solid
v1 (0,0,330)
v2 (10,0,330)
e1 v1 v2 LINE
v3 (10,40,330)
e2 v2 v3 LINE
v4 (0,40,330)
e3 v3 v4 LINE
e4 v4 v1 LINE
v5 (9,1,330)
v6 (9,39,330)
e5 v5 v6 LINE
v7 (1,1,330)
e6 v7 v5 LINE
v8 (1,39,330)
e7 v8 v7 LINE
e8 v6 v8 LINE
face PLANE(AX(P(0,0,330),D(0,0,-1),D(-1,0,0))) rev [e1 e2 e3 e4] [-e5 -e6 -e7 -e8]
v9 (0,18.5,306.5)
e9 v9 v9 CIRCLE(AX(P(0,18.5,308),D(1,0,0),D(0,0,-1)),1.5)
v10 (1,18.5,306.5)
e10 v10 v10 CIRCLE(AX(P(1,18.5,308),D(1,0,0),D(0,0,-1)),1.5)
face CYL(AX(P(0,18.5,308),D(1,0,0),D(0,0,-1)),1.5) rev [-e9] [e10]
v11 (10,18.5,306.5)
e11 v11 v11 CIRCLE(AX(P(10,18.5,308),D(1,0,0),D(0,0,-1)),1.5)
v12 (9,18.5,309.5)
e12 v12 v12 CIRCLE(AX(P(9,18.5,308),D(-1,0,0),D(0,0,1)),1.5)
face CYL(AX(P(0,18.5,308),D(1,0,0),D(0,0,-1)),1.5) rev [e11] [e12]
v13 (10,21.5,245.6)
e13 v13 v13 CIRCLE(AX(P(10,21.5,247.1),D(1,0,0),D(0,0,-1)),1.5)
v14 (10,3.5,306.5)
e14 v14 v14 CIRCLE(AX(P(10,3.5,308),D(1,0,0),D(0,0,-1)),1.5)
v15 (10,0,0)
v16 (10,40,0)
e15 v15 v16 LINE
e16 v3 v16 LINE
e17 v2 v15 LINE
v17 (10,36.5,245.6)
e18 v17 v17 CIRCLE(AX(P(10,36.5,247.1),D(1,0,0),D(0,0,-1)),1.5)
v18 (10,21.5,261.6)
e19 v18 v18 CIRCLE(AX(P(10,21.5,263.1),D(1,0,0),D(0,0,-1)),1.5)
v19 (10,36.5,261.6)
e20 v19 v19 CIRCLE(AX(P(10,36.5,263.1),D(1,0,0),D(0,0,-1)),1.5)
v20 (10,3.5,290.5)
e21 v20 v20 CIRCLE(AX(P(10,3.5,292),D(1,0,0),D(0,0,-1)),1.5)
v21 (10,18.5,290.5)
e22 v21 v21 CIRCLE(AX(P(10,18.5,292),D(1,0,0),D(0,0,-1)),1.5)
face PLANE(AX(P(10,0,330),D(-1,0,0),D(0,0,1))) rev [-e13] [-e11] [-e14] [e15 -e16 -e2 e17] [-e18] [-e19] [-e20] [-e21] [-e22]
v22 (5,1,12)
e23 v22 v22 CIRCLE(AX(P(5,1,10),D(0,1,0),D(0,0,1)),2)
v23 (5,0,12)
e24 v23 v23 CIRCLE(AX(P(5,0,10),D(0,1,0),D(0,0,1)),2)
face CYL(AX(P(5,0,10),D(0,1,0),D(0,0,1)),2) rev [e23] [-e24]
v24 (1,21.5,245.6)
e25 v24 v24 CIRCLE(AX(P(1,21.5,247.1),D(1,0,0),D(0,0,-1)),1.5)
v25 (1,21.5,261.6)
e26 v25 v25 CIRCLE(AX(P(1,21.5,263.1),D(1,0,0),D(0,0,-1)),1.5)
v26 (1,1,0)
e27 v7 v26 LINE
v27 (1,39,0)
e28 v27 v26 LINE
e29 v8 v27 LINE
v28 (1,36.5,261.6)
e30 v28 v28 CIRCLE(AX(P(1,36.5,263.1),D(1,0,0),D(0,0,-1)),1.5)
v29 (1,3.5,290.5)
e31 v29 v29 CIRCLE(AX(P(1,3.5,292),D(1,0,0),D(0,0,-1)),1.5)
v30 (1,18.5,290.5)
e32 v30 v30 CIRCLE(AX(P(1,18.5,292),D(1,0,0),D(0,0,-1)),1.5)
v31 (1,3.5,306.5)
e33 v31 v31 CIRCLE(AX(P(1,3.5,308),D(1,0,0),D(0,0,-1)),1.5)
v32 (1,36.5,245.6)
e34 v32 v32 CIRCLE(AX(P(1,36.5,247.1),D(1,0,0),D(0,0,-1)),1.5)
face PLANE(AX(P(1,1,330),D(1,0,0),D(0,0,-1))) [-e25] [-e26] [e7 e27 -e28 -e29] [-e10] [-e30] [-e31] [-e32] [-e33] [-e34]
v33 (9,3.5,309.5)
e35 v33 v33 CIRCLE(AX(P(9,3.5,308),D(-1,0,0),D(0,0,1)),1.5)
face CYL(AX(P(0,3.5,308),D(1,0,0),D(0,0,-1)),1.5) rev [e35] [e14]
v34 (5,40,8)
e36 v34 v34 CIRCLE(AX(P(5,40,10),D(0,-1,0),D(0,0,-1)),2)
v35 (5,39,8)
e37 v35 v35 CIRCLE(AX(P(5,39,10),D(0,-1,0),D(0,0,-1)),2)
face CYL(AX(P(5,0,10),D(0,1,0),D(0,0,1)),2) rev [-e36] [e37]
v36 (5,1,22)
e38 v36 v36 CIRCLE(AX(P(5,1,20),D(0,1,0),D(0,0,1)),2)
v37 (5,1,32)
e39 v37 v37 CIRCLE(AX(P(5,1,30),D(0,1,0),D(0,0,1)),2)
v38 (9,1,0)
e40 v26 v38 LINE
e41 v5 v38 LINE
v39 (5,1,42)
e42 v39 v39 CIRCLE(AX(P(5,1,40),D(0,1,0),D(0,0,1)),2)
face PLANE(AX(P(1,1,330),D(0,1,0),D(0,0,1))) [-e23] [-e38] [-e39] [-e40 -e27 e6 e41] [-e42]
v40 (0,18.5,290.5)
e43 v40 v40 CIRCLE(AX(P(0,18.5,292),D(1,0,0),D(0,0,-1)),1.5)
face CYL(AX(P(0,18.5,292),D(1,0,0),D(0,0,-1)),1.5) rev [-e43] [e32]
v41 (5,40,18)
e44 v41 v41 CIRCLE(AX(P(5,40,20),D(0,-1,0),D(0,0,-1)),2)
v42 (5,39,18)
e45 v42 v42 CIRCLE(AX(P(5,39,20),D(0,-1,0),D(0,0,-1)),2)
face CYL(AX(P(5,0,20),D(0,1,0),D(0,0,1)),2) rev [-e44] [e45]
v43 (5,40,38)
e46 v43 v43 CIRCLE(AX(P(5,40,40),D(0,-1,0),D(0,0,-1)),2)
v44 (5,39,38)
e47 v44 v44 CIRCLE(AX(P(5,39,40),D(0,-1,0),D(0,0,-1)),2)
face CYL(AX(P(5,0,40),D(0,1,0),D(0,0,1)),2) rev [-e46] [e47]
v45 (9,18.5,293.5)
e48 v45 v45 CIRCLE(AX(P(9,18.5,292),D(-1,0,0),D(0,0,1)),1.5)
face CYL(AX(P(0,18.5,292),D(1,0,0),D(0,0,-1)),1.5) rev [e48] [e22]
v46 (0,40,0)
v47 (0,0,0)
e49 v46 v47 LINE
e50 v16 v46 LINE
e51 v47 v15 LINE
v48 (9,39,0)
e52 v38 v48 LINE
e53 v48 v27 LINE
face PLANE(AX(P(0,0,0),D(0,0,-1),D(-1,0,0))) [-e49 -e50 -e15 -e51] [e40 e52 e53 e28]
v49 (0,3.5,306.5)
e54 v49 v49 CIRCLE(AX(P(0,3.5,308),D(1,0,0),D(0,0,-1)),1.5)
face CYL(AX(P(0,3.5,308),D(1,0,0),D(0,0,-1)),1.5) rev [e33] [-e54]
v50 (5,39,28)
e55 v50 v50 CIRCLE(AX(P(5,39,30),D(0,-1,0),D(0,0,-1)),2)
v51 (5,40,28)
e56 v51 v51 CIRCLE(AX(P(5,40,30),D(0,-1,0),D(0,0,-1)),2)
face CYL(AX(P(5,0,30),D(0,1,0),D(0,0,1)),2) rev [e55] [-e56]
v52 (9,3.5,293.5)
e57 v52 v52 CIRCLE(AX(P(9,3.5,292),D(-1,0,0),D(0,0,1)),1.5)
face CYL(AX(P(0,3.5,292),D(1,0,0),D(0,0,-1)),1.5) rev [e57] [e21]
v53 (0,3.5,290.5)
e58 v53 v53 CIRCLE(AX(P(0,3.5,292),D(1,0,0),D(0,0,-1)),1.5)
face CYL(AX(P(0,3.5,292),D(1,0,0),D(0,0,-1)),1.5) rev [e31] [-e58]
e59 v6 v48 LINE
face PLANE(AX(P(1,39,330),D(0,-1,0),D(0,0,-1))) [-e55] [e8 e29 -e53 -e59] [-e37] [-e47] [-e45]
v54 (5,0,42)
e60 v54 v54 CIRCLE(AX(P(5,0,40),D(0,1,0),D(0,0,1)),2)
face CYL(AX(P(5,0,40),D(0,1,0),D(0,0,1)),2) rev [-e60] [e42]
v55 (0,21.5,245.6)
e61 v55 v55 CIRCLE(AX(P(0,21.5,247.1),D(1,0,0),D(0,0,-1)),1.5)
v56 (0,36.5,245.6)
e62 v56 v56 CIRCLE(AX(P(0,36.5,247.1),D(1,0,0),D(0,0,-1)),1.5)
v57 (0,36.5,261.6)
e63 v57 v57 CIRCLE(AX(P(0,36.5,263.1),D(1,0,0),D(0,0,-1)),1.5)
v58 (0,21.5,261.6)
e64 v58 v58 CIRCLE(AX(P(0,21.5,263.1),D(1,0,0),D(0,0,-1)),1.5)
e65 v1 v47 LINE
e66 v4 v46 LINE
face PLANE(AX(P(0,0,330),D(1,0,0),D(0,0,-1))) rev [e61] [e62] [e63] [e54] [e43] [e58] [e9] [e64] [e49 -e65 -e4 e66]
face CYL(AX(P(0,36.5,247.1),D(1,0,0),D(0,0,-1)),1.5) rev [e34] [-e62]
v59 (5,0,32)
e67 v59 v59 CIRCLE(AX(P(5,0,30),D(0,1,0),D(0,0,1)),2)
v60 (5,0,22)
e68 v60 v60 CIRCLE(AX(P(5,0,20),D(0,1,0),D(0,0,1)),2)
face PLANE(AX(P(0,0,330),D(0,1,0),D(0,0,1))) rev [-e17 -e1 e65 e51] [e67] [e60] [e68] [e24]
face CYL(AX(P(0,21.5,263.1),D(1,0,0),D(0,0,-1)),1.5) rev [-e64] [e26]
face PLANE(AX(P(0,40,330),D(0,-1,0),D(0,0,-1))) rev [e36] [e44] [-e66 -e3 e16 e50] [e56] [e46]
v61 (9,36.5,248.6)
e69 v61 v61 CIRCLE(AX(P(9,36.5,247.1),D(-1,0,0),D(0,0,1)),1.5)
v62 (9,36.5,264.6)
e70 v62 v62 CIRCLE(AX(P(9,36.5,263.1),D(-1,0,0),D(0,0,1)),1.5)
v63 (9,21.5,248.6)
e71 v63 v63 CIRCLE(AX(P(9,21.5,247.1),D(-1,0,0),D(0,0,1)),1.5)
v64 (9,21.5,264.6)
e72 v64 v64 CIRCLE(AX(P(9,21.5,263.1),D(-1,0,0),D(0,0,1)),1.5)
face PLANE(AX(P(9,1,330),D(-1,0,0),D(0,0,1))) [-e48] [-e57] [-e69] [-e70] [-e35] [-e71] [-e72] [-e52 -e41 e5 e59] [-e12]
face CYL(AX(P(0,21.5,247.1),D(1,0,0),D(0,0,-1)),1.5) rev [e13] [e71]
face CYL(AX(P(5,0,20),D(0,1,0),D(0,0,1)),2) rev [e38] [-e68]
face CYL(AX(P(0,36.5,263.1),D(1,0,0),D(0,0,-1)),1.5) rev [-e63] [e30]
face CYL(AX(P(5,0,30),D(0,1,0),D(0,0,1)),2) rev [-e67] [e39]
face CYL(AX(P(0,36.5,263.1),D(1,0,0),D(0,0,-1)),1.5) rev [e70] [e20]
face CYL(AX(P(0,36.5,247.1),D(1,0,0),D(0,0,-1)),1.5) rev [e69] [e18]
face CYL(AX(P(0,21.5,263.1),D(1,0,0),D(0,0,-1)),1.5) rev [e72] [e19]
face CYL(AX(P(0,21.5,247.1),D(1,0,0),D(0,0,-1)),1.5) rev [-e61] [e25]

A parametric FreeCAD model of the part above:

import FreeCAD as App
import Part
import Sketcher

V = App.Vector


def add_polygon(sketch, points):
    """Adds a closed chain of lines whose ends are joined by coincident constraints."""
    first, n = sketch.GeometryCount, len(points)
    for a, b in zip(points, points[1:] + points[:1]):
        sketch.addGeometry(Part.LineSegment(App.Vector(*a, 0), App.Vector(*b, 0)), False)
    for i in range(n):
        sketch.addConstraint(Sketcher.Constraint("Coincident", first + i, 2, first + (i + 1) % n, 1))

doc = App.newDocument("Part")
body = doc.addObject("PartDesign::Body", "Body")

sketch1 = body.newObject("Sketcher::SketchObject", "Sketch")
sketch1.AttachmentSupport = (doc.getObject("XY_Plane"), [""])
sketch1.MapMode = "FlatFace"
add_polygon(sketch1, [(0, 40), (0, 0), (10, 0), (10, 40)])
add_polygon(sketch1, [(9, 1), (1, 1), (1, 39), (9, 39)])
sketch1.addConstraint(Sketcher.Constraint("Vertical", 0))
sketch1.addConstraint(Sketcher.Constraint("Horizontal", 1))
sketch1.addConstraint(Sketcher.Constraint("Vertical", 2))
sketch1.addConstraint(Sketcher.Constraint("Horizontal", 3))
sketch1.addConstraint(Sketcher.Constraint("Horizontal", 4))
sketch1.addConstraint(Sketcher.Constraint("Vertical", 5))
sketch1.addConstraint(Sketcher.Constraint("Horizontal", 6))
sketch1.addConstraint(Sketcher.Constraint("Vertical", 7))
sketch1.addConstraint(Sketcher.Constraint("Coincident", 0, 2, -1, 1))
sketch1.addConstraint(Sketcher.Constraint("DistanceX", 1, 1, 1, 2, 10.0))
sketch1.addConstraint(Sketcher.Constraint("DistanceX", 4, 2, 4, 1, 8.0))
sketch1.addConstraint(Sketcher.Constraint("DistanceY", 0, 2, 0, 1, 40.0))
sketch1.addConstraint(Sketcher.Constraint("DistanceY", 5, 1, 5, 2, 38.0))
sketch1.addConstraint(Sketcher.Constraint("DistanceX", -1, 1, 4, 2, 1.0))
sketch1.addConstraint(Sketcher.Constraint("DistanceY", -1, 1, 4, 2, 1.0))
pad1 = body.newObject("PartDesign::Pad", "Pad")
pad1.Profile = sketch1
pad1.Length = 330

sketch2 = body.newObject("Sketcher::SketchObject", "Sketch001")
sketch2.AttachmentSupport = (doc.getObject("YZ_Plane"), [""])
sketch2.MapMode = "FlatFace"
sketch2.AttachmentOffset = App.Placement(V(0, 0, 10), App.Rotation())
sketch2.addGeometry(Part.Circle(V(18.5, 308, 0), V(0, 0, 1), 1.5), False)
sketch2.addGeometry(Part.Circle(V(18.5, 292, 0), V(0, 0, 1), 1.5), False)
sketch2.addGeometry(Part.Circle(V(3.5, 292, 0), V(0, 0, 1), 1.5), False)
sketch2.addGeometry(Part.Circle(V(3.5, 308, 0), V(0, 0, 1), 1.5), False)
sketch2.addGeometry(Part.Circle(V(36.5, 263.1, 0), V(0, 0, 1), 1.5), False)
sketch2.addGeometry(Part.Circle(V(36.5, 247.1, 0), V(0, 0, 1), 1.5), False)
sketch2.addGeometry(Part.Circle(V(21.5, 263.1, 0), V(0, 0, 1), 1.5), False)
sketch2.addGeometry(Part.Circle(V(21.5, 247.1, 0), V(0, 0, 1), 1.5), False)
sketch2.addConstraint(Sketcher.Constraint("Equal", 0, 1))
sketch2.addConstraint(Sketcher.Constraint("Equal", 1, 2))
sketch2.addConstraint(Sketcher.Constraint("Equal", 2, 3))
sketch2.addConstraint(Sketcher.Constraint("Equal", 3, 4))
sketch2.addConstraint(Sketcher.Constraint("Equal", 4, 5))
sketch2.addConstraint(Sketcher.Constraint("Equal", 5, 6))
sketch2.addConstraint(Sketcher.Constraint("Equal", 6, 7))
sketch2.addConstraint(Sketcher.Constraint("Horizontal", 1, 3, 2, 3))
sketch2.addConstraint(Sketcher.Constraint("Horizontal", 0, 3, 3, 3))
sketch2.addConstraint(Sketcher.Constraint("Horizontal", 4, 3, 6, 3))
sketch2.addConstraint(Sketcher.Constraint("Horizontal", 5, 3, 7, 3))
sketch2.addConstraint(Sketcher.Constraint("Vertical", 0, 3, 1, 3))
sketch2.addConstraint(Sketcher.Constraint("Vertical", 2, 3, 3, 3))
sketch2.addConstraint(Sketcher.Constraint("Vertical", 4, 3, 5, 3))
sketch2.addConstraint(Sketcher.Constraint("Vertical", 6, 3, 7, 3))
sketch2.addConstraint(Sketcher.Constraint("Diameter", 0, 3.0))
sketch2.addConstraint(Sketcher.Constraint("DistanceY", -1, 1, 0, 3, 308.0))
sketch2.addConstraint(Sketcher.Constraint("DistanceY", -1, 1, 1, 3, 292.0))
sketch2.addConstraint(Sketcher.Constraint("DistanceX", 2, 3, 1, 3, 15.0))
sketch2.addConstraint(Sketcher.Constraint("DistanceX", 1, 3, 4, 3, 18.0))
sketch2.addConstraint(Sketcher.Constraint("DistanceY", 5, 3, 4, 3, 16.0))
sketch2.addConstraint(Sketcher.Constraint("DistanceX", 6, 3, 4, 3, 15.0))
sketch2.addConstraint(Sketcher.Constraint("DistanceX", -1, 1, 0, 3, 18.5))
sketch2.addConstraint(Sketcher.Constraint("DistanceY", -1, 1, 4, 3, 263.1))
pocket1 = body.newObject("PartDesign::Pocket", "Pocket")
pocket1.Profile = sketch2
pocket1.Length = 10

sketch3 = body.newObject("Sketcher::SketchObject", "Sketch002")
sketch3.AttachmentSupport = (doc.getObject("XZ_Plane"), [""])
sketch3.MapMode = "FlatFace"
sketch3.AttachmentOffset = App.Placement(V(0, 0, -40), App.Rotation())
sketch3.addGeometry(Part.Circle(V(5, 10, 0), V(0, 0, 1), 2), False)
sketch3.addGeometry(Part.Circle(V(5, 20, 0), V(0, 0, 1), 2), False)
sketch3.addGeometry(Part.Circle(V(5, 30, 0), V(0, 0, 1), 2), False)
sketch3.addGeometry(Part.Circle(V(5, 40, 0), V(0, 0, 1), 2), False)
sketch3.addConstraint(Sketcher.Constraint("Equal", 0, 1))
sketch3.addConstraint(Sketcher.Constraint("Equal", 1, 2))
sketch3.addConstraint(Sketcher.Constraint("Equal", 2, 3))
sketch3.addConstraint(Sketcher.Constraint("Vertical", 0, 3, 1, 3))
sketch3.addConstraint(Sketcher.Constraint("Vertical", 1, 3, 2, 3))
sketch3.addConstraint(Sketcher.Constraint("Vertical", 2, 3, 3, 3))
sketch3.addConstraint(Sketcher.Constraint("Diameter", 0, 4.0))
sketch3.addConstraint(Sketcher.Constraint("DistanceX", -1, 1, 0, 3, 5.0))
sketch3.addConstraint(Sketcher.Constraint("DistanceY", -1, 1, 0, 3, 10.0))
sketch3.addConstraint(Sketcher.Constraint("DistanceY", -1, 1, 1, 3, 20.0))
sketch3.addConstraint(Sketcher.Constraint("DistanceY", -1, 1, 2, 3, 30.0))
sketch3.addConstraint(Sketcher.Constraint("DistanceY", -1, 1, 3, 3, 40.0))
pocket2 = body.newObject("PartDesign::Pocket", "Pocket001")
pocket2.Profile = sketch3
pocket2.Type = "ThroughAll"
pocket2.Midplane = True

doc.recompute()
